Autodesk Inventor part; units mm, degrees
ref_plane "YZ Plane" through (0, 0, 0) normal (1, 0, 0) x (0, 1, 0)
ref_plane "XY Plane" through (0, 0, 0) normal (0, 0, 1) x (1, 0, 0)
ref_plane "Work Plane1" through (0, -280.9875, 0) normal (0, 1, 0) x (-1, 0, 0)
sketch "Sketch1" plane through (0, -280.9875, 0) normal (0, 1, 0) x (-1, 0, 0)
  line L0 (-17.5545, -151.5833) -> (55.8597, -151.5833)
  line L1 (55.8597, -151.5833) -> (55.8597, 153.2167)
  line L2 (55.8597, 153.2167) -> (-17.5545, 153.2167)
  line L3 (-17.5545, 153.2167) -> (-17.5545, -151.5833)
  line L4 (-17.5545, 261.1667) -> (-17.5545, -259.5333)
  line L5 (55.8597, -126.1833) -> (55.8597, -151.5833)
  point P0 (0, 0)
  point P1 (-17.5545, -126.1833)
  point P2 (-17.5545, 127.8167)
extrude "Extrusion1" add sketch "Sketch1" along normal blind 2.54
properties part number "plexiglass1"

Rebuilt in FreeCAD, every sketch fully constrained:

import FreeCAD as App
import Part
import Sketcher

V = App.Vector
Q = App.Units.Quantity

doc = App.newDocument("Part")
params = doc.addObject("Spreadsheet::Sheet", "Params")
for row, (alias, value) in enumerate([
    ("sketch1_height", "12 in"),
    ("pad1_length", "0.1 in"),
], start=1):
    params.set(f"A{row}", alias)
    params.set(f"B{row}", "=" + value)
    params.setAlias(f"B{row}", alias)

body = doc.addObject("PartDesign::Body", "Body")

sketch1 = body.newObject("Sketcher::SketchObject", "Sketch")
sketch1.AttachmentSupport = (doc.getObject("XZ_Plane"), [""])
sketch1.MapMode = "FlatFace"
sketch1.AttachmentOffset = App.Placement(V(0, 0, 11.0625 * 25.4), App.Rotation())
sketch1.addGeometry([
    Part.LineSegment(V(18, 153, 0), V(18, -152, 0)),
    Part.LineSegment(V(18, -152, 0), V(-56, -152, 0)),
    Part.LineSegment(V(-56, -152, 0), V(-56, 153, 0)),
    Part.LineSegment(V(-56, 153, 0), V(18, 153, 0)),
], False)
sketch1.addConstraint([
    Sketcher.Constraint("Coincident", 0, 2, 1, 1),
    Sketcher.Constraint("Coincident", 1, 2, 2, 1),
    Sketcher.Constraint("Coincident", 2, 2, 3, 1),
    Sketcher.Constraint("Coincident", 3, 2, 0, 1),
    Sketcher.Constraint("Vertical", 0),
    Sketcher.Constraint("Horizontal", 1),
    Sketcher.Constraint("Vertical", 2),
    Sketcher.Constraint("Horizontal", 3),
    Sketcher.Constraint("DistanceY", 0, 2, 0, 1, Q("12 in")),
    Sketcher.Constraint("DistanceX", 1, 2, 1, 1, 73.4142),
    Sketcher.Constraint("DistanceX", 1, 2, -1, 1, Q("2.1992 in")),
    Sketcher.Constraint("DistanceY", 0, 2, -1, 1, 151.5833),
])
sketch1.setExpression("Constraints[8]", "Params.sketch1_height")
pad1 = body.newObject("PartDesign::Pad", "Pad")
pad1.Profile = sketch1
pad1.setExpression("Length", "Params.pad1_length")
pad1.Reversed = True

doc.recompute()
